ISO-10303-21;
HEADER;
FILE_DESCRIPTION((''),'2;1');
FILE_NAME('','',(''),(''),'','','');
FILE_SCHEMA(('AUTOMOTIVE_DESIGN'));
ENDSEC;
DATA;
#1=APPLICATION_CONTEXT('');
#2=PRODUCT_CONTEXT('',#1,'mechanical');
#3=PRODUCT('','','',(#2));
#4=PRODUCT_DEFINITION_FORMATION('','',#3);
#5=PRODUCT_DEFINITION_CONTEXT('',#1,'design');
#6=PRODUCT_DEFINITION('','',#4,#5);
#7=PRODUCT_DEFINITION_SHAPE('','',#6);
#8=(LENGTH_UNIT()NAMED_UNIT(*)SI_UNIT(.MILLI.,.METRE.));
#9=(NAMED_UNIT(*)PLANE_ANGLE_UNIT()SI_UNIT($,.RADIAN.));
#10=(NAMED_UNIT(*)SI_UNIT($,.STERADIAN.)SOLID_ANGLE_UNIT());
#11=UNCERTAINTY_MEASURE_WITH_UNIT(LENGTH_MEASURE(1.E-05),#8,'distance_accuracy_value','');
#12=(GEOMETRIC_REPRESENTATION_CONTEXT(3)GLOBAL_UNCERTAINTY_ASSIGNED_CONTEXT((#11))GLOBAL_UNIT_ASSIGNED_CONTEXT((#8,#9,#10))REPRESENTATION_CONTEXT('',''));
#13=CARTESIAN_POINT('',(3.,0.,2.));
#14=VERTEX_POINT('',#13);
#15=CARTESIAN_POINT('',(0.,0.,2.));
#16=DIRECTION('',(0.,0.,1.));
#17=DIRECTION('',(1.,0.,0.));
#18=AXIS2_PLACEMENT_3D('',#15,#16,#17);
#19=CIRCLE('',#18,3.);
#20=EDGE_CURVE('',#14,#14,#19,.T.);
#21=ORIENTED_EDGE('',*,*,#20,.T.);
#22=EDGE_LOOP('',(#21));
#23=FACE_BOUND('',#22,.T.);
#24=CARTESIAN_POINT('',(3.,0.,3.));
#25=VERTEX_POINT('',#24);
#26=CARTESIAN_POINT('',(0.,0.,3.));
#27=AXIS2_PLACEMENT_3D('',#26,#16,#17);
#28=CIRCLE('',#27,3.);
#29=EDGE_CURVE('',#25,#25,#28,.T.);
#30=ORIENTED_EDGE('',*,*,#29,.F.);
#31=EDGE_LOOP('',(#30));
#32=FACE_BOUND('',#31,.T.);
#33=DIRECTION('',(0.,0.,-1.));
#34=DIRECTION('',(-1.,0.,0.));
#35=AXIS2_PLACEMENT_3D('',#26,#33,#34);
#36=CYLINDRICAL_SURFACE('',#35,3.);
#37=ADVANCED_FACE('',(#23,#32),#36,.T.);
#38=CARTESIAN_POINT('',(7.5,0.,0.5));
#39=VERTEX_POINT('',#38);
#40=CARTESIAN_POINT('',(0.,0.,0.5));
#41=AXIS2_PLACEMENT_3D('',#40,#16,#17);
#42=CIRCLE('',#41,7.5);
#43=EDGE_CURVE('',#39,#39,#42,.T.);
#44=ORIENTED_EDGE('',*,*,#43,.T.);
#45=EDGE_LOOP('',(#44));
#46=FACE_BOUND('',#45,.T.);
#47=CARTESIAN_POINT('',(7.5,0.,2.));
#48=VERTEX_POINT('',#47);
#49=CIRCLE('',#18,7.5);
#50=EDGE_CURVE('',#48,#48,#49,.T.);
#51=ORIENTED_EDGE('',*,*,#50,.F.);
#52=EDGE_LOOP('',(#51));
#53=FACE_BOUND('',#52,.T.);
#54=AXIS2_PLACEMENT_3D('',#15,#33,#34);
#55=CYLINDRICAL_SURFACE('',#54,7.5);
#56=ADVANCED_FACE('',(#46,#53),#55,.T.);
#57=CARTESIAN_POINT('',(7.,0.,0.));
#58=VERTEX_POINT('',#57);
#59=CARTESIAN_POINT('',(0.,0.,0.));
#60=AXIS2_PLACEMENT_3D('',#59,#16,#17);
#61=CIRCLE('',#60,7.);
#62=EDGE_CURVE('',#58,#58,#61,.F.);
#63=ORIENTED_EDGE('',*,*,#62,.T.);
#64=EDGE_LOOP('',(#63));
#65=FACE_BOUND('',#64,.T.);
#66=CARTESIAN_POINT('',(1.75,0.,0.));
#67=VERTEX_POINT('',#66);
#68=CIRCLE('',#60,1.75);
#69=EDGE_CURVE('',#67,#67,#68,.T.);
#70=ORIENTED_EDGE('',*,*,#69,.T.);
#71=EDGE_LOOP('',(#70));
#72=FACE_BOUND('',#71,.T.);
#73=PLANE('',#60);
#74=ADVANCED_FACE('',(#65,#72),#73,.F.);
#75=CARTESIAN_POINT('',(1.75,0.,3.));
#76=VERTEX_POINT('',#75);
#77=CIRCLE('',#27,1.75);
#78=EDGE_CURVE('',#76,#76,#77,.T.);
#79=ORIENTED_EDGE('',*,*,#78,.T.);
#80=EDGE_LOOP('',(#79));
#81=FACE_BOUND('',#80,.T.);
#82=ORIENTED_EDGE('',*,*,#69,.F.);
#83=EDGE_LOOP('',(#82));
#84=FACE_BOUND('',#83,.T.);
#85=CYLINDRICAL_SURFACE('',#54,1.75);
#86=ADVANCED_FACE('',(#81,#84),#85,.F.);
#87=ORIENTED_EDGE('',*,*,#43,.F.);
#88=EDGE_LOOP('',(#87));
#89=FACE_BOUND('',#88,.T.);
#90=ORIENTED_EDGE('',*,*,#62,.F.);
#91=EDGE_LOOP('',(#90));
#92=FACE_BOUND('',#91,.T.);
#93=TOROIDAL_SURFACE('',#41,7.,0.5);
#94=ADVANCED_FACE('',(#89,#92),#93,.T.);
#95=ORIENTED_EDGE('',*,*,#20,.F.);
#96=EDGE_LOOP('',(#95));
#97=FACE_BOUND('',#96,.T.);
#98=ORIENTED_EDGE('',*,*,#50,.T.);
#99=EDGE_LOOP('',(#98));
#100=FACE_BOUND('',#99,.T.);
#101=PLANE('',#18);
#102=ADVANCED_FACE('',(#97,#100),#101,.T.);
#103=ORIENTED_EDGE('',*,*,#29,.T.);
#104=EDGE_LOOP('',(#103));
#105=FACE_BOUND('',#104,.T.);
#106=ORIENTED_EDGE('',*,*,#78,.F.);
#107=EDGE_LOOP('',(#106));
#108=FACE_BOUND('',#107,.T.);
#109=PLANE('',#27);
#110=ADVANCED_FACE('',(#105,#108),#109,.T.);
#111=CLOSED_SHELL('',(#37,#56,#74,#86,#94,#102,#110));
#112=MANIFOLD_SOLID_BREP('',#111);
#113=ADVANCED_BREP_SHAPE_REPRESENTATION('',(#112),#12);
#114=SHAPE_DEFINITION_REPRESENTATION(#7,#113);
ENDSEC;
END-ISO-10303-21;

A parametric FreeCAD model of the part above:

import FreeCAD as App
import Part
import Sketcher
Q = App.Units.Quantity


def edges_at(feature, points):
    """Names of the edges that pass closest to the given points."""
    edges = feature.Shape.Edges
    near = lambda p: min(range(len(edges)), key=lambda i: edges[i].distToShape(Part.Vertex(*p))[0])
    return sorted({f"Edge{near(p) + 1}" for p in points})

doc = App.newDocument("Part")
body = doc.addObject("PartDesign::Body", "Body")

# Sketch on XY plane
sketch1 = body.newObject("Sketcher::SketchObject", "Sketch")
sketch1.AttachmentSupport = (doc.getObject("XY_Plane"), [""])
sketch1.MapMode = "FlatFace"
sketch1.addGeometry(Part.Circle(App.Vector(0, 0, 0), App.Vector(0, 0, 1), 7.5), False)
sketch1.addGeometry(Part.Circle(App.Vector(0, 0, 0), App.Vector(0, 0, 1), 1.8), False)
sketch1.addConstraint(Sketcher.Constraint("Coincident", 0, 3, -1, 1))
sketch1.addConstraint(Sketcher.Constraint("Coincident", 1, 3, -1, 1))
sketch1.addConstraint(Sketcher.Constraint("Diameter", 0, Q("15 mm")))
sketch1.addConstraint(Sketcher.Constraint("Diameter", 1, Q("3.5 mm")))
pad1 = body.newObject("PartDesign::Pad", "Pad")
pad1.Profile = sketch1
pad1.Length = 2

# Sketch on XY plane
sketch2 = body.newObject("Sketcher::SketchObject", "Sketch001")
sketch2.AttachmentSupport = (doc.getObject("XY_Plane"), [""])
sketch2.MapMode = "FlatFace"
sketch2.AttachmentOffset = App.Placement(App.Vector(0, 0, 2), App.Rotation())
sketch2.addGeometry(Part.Circle(App.Vector(0, 0, 0), App.Vector(0, 0, 1), 3), False)
sketch2.addGeometry(Part.Circle(App.Vector(0, 0, 0), App.Vector(0, 0, 1), 1.8), False)
sketch2.addConstraint(Sketcher.Constraint("Coincident", 0, 3, -1, 1))
sketch2.addConstraint(Sketcher.Constraint("Coincident", 1, 3, -1, 1))
sketch2.addConstraint(Sketcher.Constraint("Diameter", 0, Q("6 mm")))
sketch2.addConstraint(Sketcher.Constraint("Diameter", 1, Q("3.5 mm")))
pad2 = body.newObject("PartDesign::Pad", "Pad001")
pad2.Profile = sketch2
pad2.Length = 1
doc.recompute()

fillet = body.newObject("PartDesign::Fillet", "Fillet")
fillet.Base = (pad2, edges_at(pad2, [(-7.5, 0, 0)]))
fillet.Radius = 0.5

doc.recompute()
